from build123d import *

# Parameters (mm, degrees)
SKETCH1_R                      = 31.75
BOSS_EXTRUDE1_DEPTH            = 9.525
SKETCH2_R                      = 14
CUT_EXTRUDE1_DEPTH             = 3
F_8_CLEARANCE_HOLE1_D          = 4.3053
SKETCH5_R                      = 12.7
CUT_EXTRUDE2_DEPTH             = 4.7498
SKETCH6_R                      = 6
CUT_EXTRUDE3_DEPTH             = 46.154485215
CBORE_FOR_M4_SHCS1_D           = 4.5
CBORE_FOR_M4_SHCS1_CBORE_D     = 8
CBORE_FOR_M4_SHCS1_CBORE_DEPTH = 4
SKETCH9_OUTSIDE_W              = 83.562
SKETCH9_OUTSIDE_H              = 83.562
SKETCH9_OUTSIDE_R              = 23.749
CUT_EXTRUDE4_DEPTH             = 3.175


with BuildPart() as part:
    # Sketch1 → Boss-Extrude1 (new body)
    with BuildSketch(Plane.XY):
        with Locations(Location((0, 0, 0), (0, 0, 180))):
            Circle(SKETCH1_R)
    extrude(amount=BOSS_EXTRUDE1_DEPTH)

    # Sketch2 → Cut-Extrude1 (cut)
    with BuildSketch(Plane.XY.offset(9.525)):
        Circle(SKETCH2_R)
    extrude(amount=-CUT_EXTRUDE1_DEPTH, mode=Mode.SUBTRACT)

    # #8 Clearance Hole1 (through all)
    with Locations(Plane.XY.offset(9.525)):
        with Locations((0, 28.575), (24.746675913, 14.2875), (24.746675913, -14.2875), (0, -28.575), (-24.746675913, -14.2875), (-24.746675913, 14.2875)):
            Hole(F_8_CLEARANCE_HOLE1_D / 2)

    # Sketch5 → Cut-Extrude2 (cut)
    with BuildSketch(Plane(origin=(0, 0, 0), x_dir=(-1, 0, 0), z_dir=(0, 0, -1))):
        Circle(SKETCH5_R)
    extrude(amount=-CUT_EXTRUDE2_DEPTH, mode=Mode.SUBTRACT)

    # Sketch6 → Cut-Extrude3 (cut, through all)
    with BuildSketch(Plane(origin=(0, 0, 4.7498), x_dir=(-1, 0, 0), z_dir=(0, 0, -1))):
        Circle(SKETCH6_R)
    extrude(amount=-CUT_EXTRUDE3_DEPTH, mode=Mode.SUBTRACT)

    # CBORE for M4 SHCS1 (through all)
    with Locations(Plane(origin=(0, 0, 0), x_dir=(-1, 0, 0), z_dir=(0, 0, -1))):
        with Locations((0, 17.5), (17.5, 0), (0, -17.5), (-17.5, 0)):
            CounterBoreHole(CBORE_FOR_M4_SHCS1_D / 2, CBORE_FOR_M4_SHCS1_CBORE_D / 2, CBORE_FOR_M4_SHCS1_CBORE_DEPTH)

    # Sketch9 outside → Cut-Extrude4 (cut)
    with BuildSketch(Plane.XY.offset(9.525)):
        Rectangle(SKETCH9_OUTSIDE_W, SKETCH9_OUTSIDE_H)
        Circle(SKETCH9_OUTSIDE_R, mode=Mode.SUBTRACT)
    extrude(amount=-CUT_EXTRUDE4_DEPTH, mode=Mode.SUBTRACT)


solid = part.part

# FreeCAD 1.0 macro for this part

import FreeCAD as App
import Part
import Sketcher
Q = App.Units.Quantity

doc = App.newDocument("Part")
body = doc.addObject("PartDesign::Body", "Body")

sketch1 = body.newObject("Sketcher::SketchObject", "Sketch")
sketch1.AttachmentSupport = (doc.getObject("XY_Plane"), [""])
sketch1.MapMode = "FlatFace"
sketch1.addGeometry(Part.Circle(App.Vector(0, 0, 0), App.Vector(0, 0, 1), 32), False)
sketch1.addConstraint([
    Sketcher.Constraint("Coincident", 0, 3, -1, 1),
    Sketcher.Constraint("Diameter", 0, Q("2.5 in")),
])
pad1 = body.newObject("PartDesign::Pad", "Pad")
pad1.Profile = sketch1
pad1.Length = Q("0.375 in")

sketch2 = body.newObject("Sketcher::SketchObject", "Sketch001")
sketch2.AttachmentSupport = (doc.getObject("XY_Plane"), [""])
sketch2.MapMode = "FlatFace"
sketch2.AttachmentOffset = App.Placement(App.Vector(0, 0, 0.375 * 25.4), App.Rotation())
sketch2.addGeometry(Part.Circle(App.Vector(0, 0, 0), App.Vector(0, 0, 1), 14), False)
sketch2.addConstraint([
    Sketcher.Constraint("Coincident", 0, 3, -1, 1),
    Sketcher.Constraint("Diameter", 0, Q("28 mm")),
])
pocket1 = body.newObject("PartDesign::Pocket", "Pocket")
pocket1.Profile = sketch2
pocket1.Length = 3

sketch3 = body.newObject("Sketcher::SketchObject", "Sketch002")
sketch3.AttachmentSupport = (doc.getObject("XY_Plane"), [""])
sketch3.MapMode = "FlatFace"
sketch3.AttachmentOffset = App.Placement(App.Vector(0, 0, 0.375 * 25.4), App.Rotation())
sketch3.addGeometry([
    Part.Circle(App.Vector(0, 28.6, 0), App.Vector(0, 0, 1), 2.2),
    Part.Circle(App.Vector(24.7, 14.3, 0), App.Vector(0, 0, 1), 2.2),
    Part.Circle(App.Vector(24.7, -14.3, 0), App.Vector(0, 0, 1), 2.2),
    Part.Circle(App.Vector(0, -28.6, 0), App.Vector(0, 0, 1), 2.2),
    Part.Circle(App.Vector(-24.7, -14.3, 0), App.Vector(0, 0, 1), 2.2),
    Part.Circle(App.Vector(-24.7, 14.3, 0), App.Vector(0, 0, 1), 2.2),
], False)
sketch3.addConstraint([
    Sketcher.Constraint("Equal", 0, 1),
    Sketcher.Constraint("Equal", 1, 2),
    Sketcher.Constraint("Equal", 2, 3),
    Sketcher.Constraint("Equal", 3, 4),
    Sketcher.Constraint("Equal", 4, 5),
    Sketcher.Constraint("Symmetric", 0, 3, 3, 3, -1, 1),
    Sketcher.Constraint("Symmetric", 1, 3, 4, 3, -1, 1),
    Sketcher.Constraint("Symmetric", 2, 3, 5, 3, -1, 1),
    Sketcher.Constraint("Symmetric", 2, 3, 4, 3, -2),
    Sketcher.Constraint("PointOnObject", 0, 3, -2),
    Sketcher.Constraint("Diameter", 0, Q("0.1695 in")),
    Sketcher.Constraint("DistanceY", 3, 3, 0, 3, Q("2.25 in")),
    Sketcher.Constraint("DistanceY", -1, 1, 1, 3, Q("0.5625 in")),
    Sketcher.Constraint("DistanceX", 4, 3, 2, 3, Q("49.493352 mm")),
])
doc.recompute()
hole = body.newObject("PartDesign::Hole", "Hole")
hole.Profile = sketch3
hole.ThreadType = "None"
hole.Diameter = Q("0.1695 in")
hole.DepthType = "ThroughAll"

sketch4 = body.newObject("Sketcher::SketchObject", "Sketch003")
sketch4.AttachmentSupport = (doc.getObject("XY_Plane"), [""])
sketch4.MapMode = "FlatFace"
sketch4.addGeometry(Part.Circle(App.Vector(0, 0, 0), App.Vector(0, 0, 1), 13), False)
sketch4.addConstraint([
    Sketcher.Constraint("Coincident", 0, 3, -1, 1),
    Sketcher.Constraint("Diameter", 0, Q("1 in")),
])
pocket2 = body.newObject("PartDesign::Pocket", "Pocket001")
pocket2.Profile = sketch4
pocket2.Length = Q("0.187 in")
pocket2.Reversed = True

sketch5 = body.newObject("Sketcher::SketchObject", "Sketch004")
sketch5.AttachmentSupport = (doc.getObject("XY_Plane"), [""])
sketch5.MapMode = "FlatFace"
sketch5.AttachmentOffset = App.Placement(App.Vector(0, 0, 0.187 * 25.4), App.Rotation())
sketch5.addGeometry(Part.Circle(App.Vector(0, 0, 0), App.Vector(0, 0, 1), 6), False)
sketch5.addConstraint([
    Sketcher.Constraint("Coincident", 0, 3, -1, 1),
    Sketcher.Constraint("Diameter", 0, Q("12 mm")),
])
pocket3 = body.newObject("PartDesign::Pocket", "Pocket002")
pocket3.Profile = sketch5
pocket3.Type = "ThroughAll"
pocket3.Reversed = True

sketch6 = body.newObject("Sketcher::SketchObject", "Sketch005")
sketch6.AttachmentSupport = (doc.getObject("XY_Plane"), [""])
sketch6.MapMode = "FlatFace"
sketch6.addGeometry([
    Part.Circle(App.Vector(0, 17.5, 0), App.Vector(0, 0, 1), 2.2),
    Part.Circle(App.Vector(-17.5, 0, 0), App.Vector(0, 0, 1), 2.2),
    Part.Circle(App.Vector(0, -17.5, 0), App.Vector(0, 0, 1), 2.2),
    Part.Circle(App.Vector(17.5, 0, 0), App.Vector(0, 0, 1), 2.2),
], False)
sketch6.addConstraint([
    Sketcher.Constraint("Equal", 0, 1),
    Sketcher.Constraint("Equal", 1, 2),
    Sketcher.Constraint("Equal", 2, 3),
    Sketcher.Constraint("Symmetric", 0, 3, 2, 3, -1, 1),
    Sketcher.Constraint("Symmetric", 1, 3, 3, 3, -1, 1),
    Sketcher.Constraint("PointOnObject", 0, 3, -2),
    Sketcher.Constraint("PointOnObject", 1, 3, -1),
    Sketcher.Constraint("Diameter", 0, Q("4.5 mm")),
    Sketcher.Constraint("DistanceY", -1, 1, 0, 3, Q("17.5 mm")),
    Sketcher.Constraint("DistanceX", 1, 3, -1, 1, Q("17.5 mm")),
])
doc.recompute()
hole2 = body.newObject("PartDesign::Hole", "Hole001")
hole2.Profile = sketch6
hole2.ThreadType = "None"
hole2.Diameter = 4.5
hole2.DepthType = "ThroughAll"
hole2.HoleCutType = "Counterbore"
hole2.HoleCutDiameter = 8
hole2.HoleCutDepth = 4
hole2.Reversed = True

sketch7 = body.newObject("Sketcher::SketchObject", "Sketch006")
sketch7.AttachmentSupport = (doc.getObject("XY_Plane"), [""])
sketch7.MapMode = "FlatFace"
sketch7.AttachmentOffset = App.Placement(App.Vector(0, 0, 0.375 * 25.4), App.Rotation())
sketch7.addGeometry([
    Part.LineSegment(App.Vector(-42, 42, 0), App.Vector(-42, -42, 0)),
    Part.LineSegment(App.Vector(-42, -42, 0), App.Vector(42, -42, 0)),
    Part.LineSegment(App.Vector(42, -42, 0), App.Vector(42, 42, 0)),
    Part.LineSegment(App.Vector(42, 42, 0), App.Vector(-42, 42, 0)),
    Part.Circle(App.Vector(0, 0, 0), App.Vector(0, 0, 1), 24),
], False)
sketch7.addConstraint([
    Sketcher.Constraint("Coincident", 0, 2, 1, 1),
    Sketcher.Constraint("Coincident", 1, 2, 2, 1),
    Sketcher.Constraint("Coincident", 2, 2, 3, 1),
    Sketcher.Constraint("Coincident", 3, 2, 0, 1),
    Sketcher.Constraint("Vertical", 0),
    Sketcher.Constraint("Horizontal", 1),
    Sketcher.Constraint("Vertical", 2),
    Sketcher.Constraint("Horizontal", 3),
    Sketcher.Constraint("Coincident", 4, 3, -1, 1),
    Sketcher.Constraint("Symmetric", 0, 2, 2, 2, -1, 1),
    Sketcher.Constraint("Equal", 3, 0),
    Sketcher.Constraint("Diameter", 4, Q("1.87 in")),
    Sketcher.Constraint("DistanceX", 1, 1, 1, 2, Q("83.562 mm")),
])
pocket4 = body.newObject("PartDesign::Pocket", "Pocket003")
pocket4.Profile = sketch7
pocket4.Length = Q("0.125 in")

doc.recompute()
